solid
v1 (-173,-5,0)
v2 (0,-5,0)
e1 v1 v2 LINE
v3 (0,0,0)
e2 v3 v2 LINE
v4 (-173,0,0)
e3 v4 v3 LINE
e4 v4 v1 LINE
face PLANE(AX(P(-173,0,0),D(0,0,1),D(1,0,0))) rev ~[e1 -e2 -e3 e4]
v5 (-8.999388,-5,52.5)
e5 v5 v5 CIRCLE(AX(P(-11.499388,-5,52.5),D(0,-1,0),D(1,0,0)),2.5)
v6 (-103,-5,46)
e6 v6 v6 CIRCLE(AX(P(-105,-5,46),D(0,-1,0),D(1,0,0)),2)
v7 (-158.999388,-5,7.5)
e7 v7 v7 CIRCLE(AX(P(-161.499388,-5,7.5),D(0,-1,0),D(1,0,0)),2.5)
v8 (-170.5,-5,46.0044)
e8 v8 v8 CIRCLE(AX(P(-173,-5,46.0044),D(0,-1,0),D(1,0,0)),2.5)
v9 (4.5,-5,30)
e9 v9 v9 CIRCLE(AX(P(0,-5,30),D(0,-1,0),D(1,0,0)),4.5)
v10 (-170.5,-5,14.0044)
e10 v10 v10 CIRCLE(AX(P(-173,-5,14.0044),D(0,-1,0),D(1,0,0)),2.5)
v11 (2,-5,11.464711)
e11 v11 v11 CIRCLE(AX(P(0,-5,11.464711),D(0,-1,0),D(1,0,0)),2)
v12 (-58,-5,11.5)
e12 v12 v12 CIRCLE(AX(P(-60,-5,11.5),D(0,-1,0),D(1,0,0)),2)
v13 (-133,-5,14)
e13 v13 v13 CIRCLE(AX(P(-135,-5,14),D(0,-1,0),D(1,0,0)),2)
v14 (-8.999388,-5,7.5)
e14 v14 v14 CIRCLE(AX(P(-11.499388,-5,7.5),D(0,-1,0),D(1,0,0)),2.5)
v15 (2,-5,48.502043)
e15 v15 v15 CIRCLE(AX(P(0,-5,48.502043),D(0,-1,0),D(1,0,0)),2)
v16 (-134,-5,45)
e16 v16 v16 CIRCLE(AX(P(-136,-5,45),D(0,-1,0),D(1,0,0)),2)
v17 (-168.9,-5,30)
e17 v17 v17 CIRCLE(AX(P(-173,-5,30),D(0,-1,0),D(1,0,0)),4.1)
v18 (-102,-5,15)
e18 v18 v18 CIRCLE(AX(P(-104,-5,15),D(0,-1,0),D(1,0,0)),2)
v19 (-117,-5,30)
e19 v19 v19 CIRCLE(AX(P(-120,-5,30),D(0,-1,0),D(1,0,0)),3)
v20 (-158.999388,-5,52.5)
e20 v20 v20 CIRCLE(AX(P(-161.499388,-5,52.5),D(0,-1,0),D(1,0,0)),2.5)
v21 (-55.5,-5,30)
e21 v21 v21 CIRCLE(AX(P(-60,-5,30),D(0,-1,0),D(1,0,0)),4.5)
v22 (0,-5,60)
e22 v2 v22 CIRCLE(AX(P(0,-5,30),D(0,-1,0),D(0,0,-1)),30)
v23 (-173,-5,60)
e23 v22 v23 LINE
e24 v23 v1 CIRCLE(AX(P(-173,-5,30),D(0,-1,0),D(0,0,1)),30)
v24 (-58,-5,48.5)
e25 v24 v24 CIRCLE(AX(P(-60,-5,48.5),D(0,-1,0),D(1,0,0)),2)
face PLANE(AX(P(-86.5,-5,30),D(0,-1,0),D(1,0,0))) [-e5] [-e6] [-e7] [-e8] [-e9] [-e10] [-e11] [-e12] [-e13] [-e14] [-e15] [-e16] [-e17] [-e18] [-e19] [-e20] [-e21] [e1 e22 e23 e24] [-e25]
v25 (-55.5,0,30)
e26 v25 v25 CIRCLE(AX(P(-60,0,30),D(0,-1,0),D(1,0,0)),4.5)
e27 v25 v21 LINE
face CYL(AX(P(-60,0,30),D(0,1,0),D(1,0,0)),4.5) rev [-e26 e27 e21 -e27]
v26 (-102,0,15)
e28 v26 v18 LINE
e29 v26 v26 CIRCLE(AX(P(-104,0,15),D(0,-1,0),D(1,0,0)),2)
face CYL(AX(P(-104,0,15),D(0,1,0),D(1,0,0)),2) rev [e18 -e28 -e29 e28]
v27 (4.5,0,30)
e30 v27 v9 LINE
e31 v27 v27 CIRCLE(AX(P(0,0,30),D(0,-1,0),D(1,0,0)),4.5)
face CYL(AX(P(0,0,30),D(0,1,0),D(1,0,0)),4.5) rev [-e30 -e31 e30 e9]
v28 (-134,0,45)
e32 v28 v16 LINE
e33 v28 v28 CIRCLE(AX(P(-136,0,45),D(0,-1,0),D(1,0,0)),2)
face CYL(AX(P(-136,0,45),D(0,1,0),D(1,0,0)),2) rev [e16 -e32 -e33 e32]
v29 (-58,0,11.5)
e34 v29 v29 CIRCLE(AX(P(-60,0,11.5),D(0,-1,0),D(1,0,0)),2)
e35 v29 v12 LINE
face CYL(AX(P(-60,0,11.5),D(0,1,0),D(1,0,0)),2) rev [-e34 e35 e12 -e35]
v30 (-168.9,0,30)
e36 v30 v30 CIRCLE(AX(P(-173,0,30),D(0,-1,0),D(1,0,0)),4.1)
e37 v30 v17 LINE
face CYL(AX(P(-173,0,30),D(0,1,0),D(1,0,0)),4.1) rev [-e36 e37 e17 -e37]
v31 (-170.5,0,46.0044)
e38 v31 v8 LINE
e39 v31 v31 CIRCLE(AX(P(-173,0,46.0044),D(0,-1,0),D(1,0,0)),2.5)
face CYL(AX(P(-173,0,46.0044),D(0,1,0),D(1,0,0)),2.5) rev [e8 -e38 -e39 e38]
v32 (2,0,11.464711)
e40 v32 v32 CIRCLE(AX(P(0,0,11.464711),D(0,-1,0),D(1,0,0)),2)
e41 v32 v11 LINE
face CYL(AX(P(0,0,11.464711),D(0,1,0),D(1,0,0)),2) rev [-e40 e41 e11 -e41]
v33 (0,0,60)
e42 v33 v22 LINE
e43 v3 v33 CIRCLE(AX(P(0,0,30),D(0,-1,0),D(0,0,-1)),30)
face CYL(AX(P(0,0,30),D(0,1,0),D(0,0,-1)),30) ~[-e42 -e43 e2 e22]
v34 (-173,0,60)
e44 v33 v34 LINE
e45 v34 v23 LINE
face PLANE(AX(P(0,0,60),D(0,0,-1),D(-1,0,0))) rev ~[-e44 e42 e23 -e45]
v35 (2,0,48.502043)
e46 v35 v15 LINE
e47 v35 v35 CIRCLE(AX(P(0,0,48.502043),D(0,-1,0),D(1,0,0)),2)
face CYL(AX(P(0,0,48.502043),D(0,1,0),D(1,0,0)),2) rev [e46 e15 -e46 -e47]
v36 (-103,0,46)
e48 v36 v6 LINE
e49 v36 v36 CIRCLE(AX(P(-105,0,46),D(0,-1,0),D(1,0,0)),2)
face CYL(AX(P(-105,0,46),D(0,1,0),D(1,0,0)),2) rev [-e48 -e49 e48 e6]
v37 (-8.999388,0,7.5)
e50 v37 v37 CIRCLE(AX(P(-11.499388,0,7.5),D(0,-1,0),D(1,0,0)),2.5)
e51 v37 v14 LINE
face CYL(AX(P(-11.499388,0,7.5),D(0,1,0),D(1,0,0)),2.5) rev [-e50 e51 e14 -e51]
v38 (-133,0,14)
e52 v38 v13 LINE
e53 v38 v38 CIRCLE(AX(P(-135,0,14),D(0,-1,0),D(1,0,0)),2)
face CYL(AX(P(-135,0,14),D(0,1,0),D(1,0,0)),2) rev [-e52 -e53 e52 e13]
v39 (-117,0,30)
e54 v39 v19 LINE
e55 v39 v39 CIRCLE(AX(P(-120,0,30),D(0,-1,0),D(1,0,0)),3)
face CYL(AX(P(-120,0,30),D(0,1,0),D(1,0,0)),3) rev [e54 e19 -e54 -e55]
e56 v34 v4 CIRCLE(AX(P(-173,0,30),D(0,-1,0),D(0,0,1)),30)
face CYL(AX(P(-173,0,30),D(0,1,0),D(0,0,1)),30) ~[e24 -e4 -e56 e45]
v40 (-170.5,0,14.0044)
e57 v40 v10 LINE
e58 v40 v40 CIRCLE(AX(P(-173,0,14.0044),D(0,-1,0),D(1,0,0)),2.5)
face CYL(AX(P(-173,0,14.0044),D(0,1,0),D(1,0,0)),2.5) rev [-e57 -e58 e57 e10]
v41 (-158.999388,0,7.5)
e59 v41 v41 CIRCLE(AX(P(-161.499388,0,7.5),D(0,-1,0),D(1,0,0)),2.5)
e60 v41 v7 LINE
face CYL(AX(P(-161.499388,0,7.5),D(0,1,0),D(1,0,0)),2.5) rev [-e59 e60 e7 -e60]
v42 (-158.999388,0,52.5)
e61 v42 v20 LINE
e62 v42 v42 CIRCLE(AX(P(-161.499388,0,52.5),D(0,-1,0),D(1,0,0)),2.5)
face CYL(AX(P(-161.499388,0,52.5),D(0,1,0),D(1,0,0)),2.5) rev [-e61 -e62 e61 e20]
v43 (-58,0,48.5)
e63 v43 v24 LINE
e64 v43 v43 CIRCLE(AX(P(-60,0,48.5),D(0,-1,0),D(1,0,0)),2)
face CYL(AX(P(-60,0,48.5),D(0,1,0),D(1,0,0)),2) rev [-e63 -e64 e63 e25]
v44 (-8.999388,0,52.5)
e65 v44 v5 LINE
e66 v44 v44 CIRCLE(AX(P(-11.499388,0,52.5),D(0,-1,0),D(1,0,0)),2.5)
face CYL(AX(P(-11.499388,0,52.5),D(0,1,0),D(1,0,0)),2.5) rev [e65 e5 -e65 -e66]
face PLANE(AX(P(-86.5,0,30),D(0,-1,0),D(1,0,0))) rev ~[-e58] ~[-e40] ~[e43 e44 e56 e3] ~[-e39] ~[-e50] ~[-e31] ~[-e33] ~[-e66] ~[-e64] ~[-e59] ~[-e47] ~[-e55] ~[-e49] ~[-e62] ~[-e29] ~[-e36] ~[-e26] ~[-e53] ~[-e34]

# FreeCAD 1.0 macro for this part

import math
import FreeCAD as App
import Part
import Sketcher

V = App.Vector
Q = App.Units.Quantity

doc = App.newDocument("Part")
body = doc.addObject("PartDesign::Body", "Body")

sketch1 = body.newObject("Sketcher::SketchObject", "Sketch")
sketch1.AttachmentSupport = (doc.getObject("XZ_Plane"), [""])
sketch1.MapMode = "FlatFace"
sketch1.addGeometry([
    Part.LineSegment(V(-173, 0, 0), V(0, 0, 0)),
    Part.ArcOfCircle(Part.Circle(V(0, 30, 0), V(0, 0, 1), 30), math.radians(-90), math.radians(90)),
    Part.LineSegment(V(0, 60, 0), V(-173, 60, 0)),
    Part.ArcOfCircle(Part.Circle(V(-173, 30, 0), V(0, 0, 1), 30), math.radians(90), math.radians(270)),
    Part.Circle(V(-161.499388, 7.5, 0), V(0, 0, 1), 2.5),
    Part.Circle(V(-173, 14.0044, 0), V(0, 0, 1), 2.5),
    Part.Circle(V(-135, 14, 0), V(0, 0, 1), 2),
    Part.Circle(V(-104, 15, 0), V(0, 0, 1), 2),
    Part.Circle(V(-60, 11.5, 0), V(0, 0, 1), 2),
    Part.Circle(V(-11.499388, 7.5, 0), V(0, 0, 1), 2.5),
    Part.Circle(V(0, 11.464711, 0), V(0, 0, 1), 2),
    Part.Circle(V(-173, 30, 0), V(0, 0, 1), 4.1),
    Part.Circle(V(-120, 30, 0), V(0, 0, 1), 3),
    Part.Circle(V(-173, 46.0044, 0), V(0, 0, 1), 2.5),
    Part.Circle(V(-136, 45, 0), V(0, 0, 1), 2),
    Part.Circle(V(-161.499388, 52.5, 0), V(0, 0, 1), 2.5),
    Part.Circle(V(-105, 46, 0), V(0, 0, 1), 2),
    Part.Circle(V(-60, 30, 0), V(0, 0, 1), 4.5),
    Part.Circle(V(0, 30, 0), V(0, 0, 1), 4.5),
    Part.Circle(V(-60, 48.5, 0), V(0, 0, 1), 2),
    Part.Circle(V(0, 48.502043, 0), V(0, 0, 1), 2),
    Part.Circle(V(-11.499388, 52.5, 0), V(0, 0, 1), 2.5),
], False)
sketch1.addConstraint([
    Sketcher.Constraint("Tangent", 0, 2, 1, 1),
    Sketcher.Constraint("Tangent", 1, 2, 2, 1),
    Sketcher.Constraint("Tangent", 2, 2, 3, 1),
    Sketcher.Constraint("Tangent", 3, 2, 0, 1),
    Sketcher.Constraint("Horizontal", 0),
    Sketcher.Constraint("Horizontal", 2),
    Sketcher.Constraint("Coincident", 0, 2, -1, 1),
    Sketcher.Constraint("Coincident", 11, 3, 3, 3),
    Sketcher.Constraint("Coincident", 18, 3, 1, 3),
    Sketcher.Constraint("Equal", 4, 5),
    Sketcher.Constraint("Equal", 6, 7),
    Sketcher.Constraint("Equal", 7, 8),
    Sketcher.Constraint("Equal", 5, 9),
    Sketcher.Constraint("Equal", 8, 10),
    Sketcher.Constraint("Equal", 9, 13),
    Sketcher.Constraint("Equal", 10, 14),
    Sketcher.Constraint("Equal", 13, 15),
    Sketcher.Constraint("Equal", 14, 16),
    Sketcher.Constraint("Equal", 17, 18),
    Sketcher.Constraint("Equal", 16, 19),
    Sketcher.Constraint("Equal", 19, 20),
    Sketcher.Constraint("Equal", 15, 21),
    Sketcher.Constraint("PointOnObject", 10, 3, -2),
    Sketcher.Constraint("PointOnObject", 20, 3, -2),
    Sketcher.Constraint("Horizontal", 4, 3, 9, 3),
    Sketcher.Constraint("Horizontal", 11, 3, 12, 3),
    Sketcher.Constraint("Horizontal", 12, 3, 17, 3),
    Sketcher.Constraint("Horizontal", 15, 3, 21, 3),
    Sketcher.Constraint("Vertical", 3, 3, 5, 3),
    Sketcher.Constraint("Vertical", 11, 3, 13, 3),
    Sketcher.Constraint("Vertical", 4, 3, 15, 3),
    Sketcher.Constraint("Vertical", 8, 3, 17, 3),
    Sketcher.Constraint("Vertical", 17, 3, 19, 3),
    Sketcher.Constraint("Vertical", 9, 3, 21, 3),
    Sketcher.Constraint("Diameter", 4, Q("5 mm")),
    Sketcher.Constraint("Diameter", 6, Q("4 mm")),
    Sketcher.Constraint("Diameter", 12, Q("6 mm")),
    Sketcher.Constraint("Diameter", 17, Q("9 mm")),
    Sketcher.Constraint("Radius", 1, Q("30 mm")),
    Sketcher.Constraint("Diameter", 11, Q("8.2 mm")),
    Sketcher.Constraint("DistanceX", 0, 1, 0, 2, Q("173 mm")),
    Sketcher.Constraint("DistanceX", 6, 3, -1, 1, Q("135 mm")),
    Sketcher.Constraint("DistanceY", -1, 1, 6, 3, Q("14 mm")),
    Sketcher.Constraint("DistanceX", 7, 3, -1, 1, Q("104 mm")),
    Sketcher.Constraint("DistanceY", -1, 1, 7, 3, Q("15 mm")),
    Sketcher.Constraint("DistanceX", 8, 3, -1, 1, Q("60 mm")),
    Sketcher.Constraint("DistanceX", 12, 3, -1, 1, Q("120 mm")),
    Sketcher.Constraint("DistanceX", 14, 3, -1, 1, Q("136 mm")),
    Sketcher.Constraint("DistanceY", -1, 1, 14, 3, Q("45 mm")),
    Sketcher.Constraint("DistanceX", 16, 3, -1, 1, Q("105 mm")),
    Sketcher.Constraint("DistanceY", -1, 1, 16, 3, Q("46 mm")),
    Sketcher.Constraint("DistanceY", 4, 3, 8, 3, Q("4 mm")),
    Sketcher.Constraint("DistanceX", 4, 3, 9, 3, Q("150 mm")),
    Sketcher.Constraint("DistanceY", 5, 3, 13, 3, Q("32 mm")),
    Sketcher.Constraint("DistanceY", 8, 3, 19, 3, Q("37 mm")),
    Sketcher.Constraint("DistanceY", 9, 3, 21, 3, Q("45 mm")),
    Sketcher.Constraint("DistanceY", -1, 1, 4, 3, Q("7.5 mm")),
    Sketcher.Constraint("DistanceY", -1, 1, 5, 3, Q("14.0044 mm")),
    Sketcher.Constraint("DistanceX", 4, 3, -1, 1, Q("161.499388 mm")),
    Sketcher.Constraint("DistanceY", -1, 1, 10, 3, Q("11.464711 mm")),
    Sketcher.Constraint("DistanceY", -1, 1, 20, 3, Q("48.502043 mm")),
])
pad1 = body.newObject("PartDesign::Pad", "Pad")
pad1.Profile = sketch1
pad1.Length = 5

doc.recompute()
